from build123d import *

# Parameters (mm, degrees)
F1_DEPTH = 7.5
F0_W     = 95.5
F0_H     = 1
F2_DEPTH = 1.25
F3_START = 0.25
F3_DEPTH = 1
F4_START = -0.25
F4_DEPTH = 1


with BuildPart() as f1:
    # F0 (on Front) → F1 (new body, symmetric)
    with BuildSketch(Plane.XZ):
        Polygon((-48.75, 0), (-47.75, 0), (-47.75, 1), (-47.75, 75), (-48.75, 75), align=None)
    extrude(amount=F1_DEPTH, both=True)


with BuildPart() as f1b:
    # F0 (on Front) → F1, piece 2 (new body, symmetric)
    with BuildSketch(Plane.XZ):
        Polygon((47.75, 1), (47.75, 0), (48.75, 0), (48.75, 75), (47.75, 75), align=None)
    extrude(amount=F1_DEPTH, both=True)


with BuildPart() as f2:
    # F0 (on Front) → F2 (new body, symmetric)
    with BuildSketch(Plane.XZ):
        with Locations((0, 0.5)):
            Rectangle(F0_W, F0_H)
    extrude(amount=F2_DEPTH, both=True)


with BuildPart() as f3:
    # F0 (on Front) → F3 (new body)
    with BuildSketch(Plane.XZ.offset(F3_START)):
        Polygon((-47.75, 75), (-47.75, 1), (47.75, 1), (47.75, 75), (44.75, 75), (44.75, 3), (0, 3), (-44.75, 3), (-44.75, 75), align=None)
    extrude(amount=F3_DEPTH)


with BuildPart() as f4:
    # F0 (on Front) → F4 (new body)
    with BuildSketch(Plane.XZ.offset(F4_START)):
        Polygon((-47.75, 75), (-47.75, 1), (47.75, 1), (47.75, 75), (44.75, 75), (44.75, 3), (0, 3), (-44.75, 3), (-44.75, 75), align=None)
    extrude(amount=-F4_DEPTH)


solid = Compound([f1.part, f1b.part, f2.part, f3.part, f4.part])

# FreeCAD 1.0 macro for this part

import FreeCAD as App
import Part
import Sketcher
from FreeCAD import Vector
Q = App.Units.Quantity


def add_polygon(sketch, points):
    """Adds a closed chain of lines whose ends are joined by coincident constraints."""
    first, n = sketch.GeometryCount, len(points)
    for a, b in zip(points, points[1:] + points[:1]):
        sketch.addGeometry(Part.LineSegment(App.Vector(*a, 0), App.Vector(*b, 0)), False)
    for i in range(n):
        sketch.addConstraint(Sketcher.Constraint("Coincident", first + i, 2, first + (i + 1) % n, 1))

doc = App.newDocument("Part")
params = doc.addObject("Spreadsheet::Sheet", "Params")
for row, (alias, value) in enumerate([
    ("sketch1_width", "1 mm"),
    ("sketch1_height", "75 mm"),
    ("pad1_length", "15 mm"),
    ("sketch2_width", "1 mm"),
    ("sketch2_height", "75 mm"),
    ("pad2_length", "15 mm"),
    ("sketch3_height", "1 mm"),
    ("sketch3_width", "95.5 mm"),
    ("pad3_length", "2.5 mm"),
    ("sketch4_width", "3 mm"),
    ("sketch4_height", "74 mm"),
    ("sketch4_height2", "72 mm"),
    ("sketch4_width2", "95.5 mm"),
    ("pad4_length", "1 mm"),
    ("sketch5_width", "3 mm"),
    ("sketch5_height", "74 mm"),
    ("sketch5_height2", "72 mm"),
    ("sketch5_width2", "95.5 mm"),
    ("pad5_length", "1 mm"),
], start=1):
    params.set(f"A{row}", alias)
    params.set(f"B{row}", "=" + value)
    params.setAlias(f"B{row}", alias)

body = doc.addObject("PartDesign::Body", "Body")

sketch1 = doc.addObject("Sketcher::SketchObject", "Sketch")
body.addObject(sketch1)
sketch1.AttachmentSupport = (doc.XZ_Plane, [""])
sketch1.MapMode = "FlatFace"
add_polygon(sketch1, [(-48.8, 0), (-47.8, 0), (-47.8, 75), (-48.8, 75)])
sketch1.addConstraint([
    Sketcher.Constraint("Horizontal", 0),
    Sketcher.Constraint("Vertical", 1),
    Sketcher.Constraint("Horizontal", 2),
    Sketcher.Constraint("Vertical", 3),
    Sketcher.Constraint("PointOnObject", 0, 2, -1),
    Sketcher.Constraint("DistanceX", 0, 1, 0, 2, Q("1 mm")),
    Sketcher.Constraint("DistanceY", 1, 1, 1, 2, Q("75 mm")),
    Sketcher.Constraint("DistanceX", 0, 2, -1, 1, Q("47.75 mm")),
])
sketch1.setExpression("Constraints[9]", "Params.sketch1_width")
sketch1.setExpression("Constraints[10]", "Params.sketch1_height")
pad1 = doc.addObject("PartDesign::Pad", "Pad")
body.addObject(pad1)
pad1.Profile = sketch1
pad1.setExpression("Length", "Params.pad1_length")
pad1.Midplane = True
body2 = doc.addObject("PartDesign::Body", "Body001")

sketch2 = doc.addObject("Sketcher::SketchObject", "Sketch001")
body2.addObject(sketch2)
sketch2.AttachmentSupport = (doc.getObject("XZ_Plane001"), [""])
sketch2.MapMode = "FlatFace"
add_polygon(sketch2, [(47.8, 0), (48.8, 0), (48.8, 75), (47.8, 75)])
sketch2.addConstraint([
    Sketcher.Constraint("Horizontal", 0),
    Sketcher.Constraint("Vertical", 1),
    Sketcher.Constraint("Horizontal", 2),
    Sketcher.Constraint("Vertical", 3),
    Sketcher.Constraint("PointOnObject", 0, 2, -1),
    Sketcher.Constraint("DistanceX", 0, 1, 0, 2, Q("1 mm")),
    Sketcher.Constraint("DistanceY", 1, 1, 1, 2, Q("75 mm")),
    Sketcher.Constraint("DistanceX", -1, 1, 0, 2, Q("48.75 mm")),
])
sketch2.setExpression("Constraints[9]", "Params.sketch2_width")
sketch2.setExpression("Constraints[10]", "Params.sketch2_height")
pad2 = doc.addObject("PartDesign::Pad", "Pad001")
body2.addObject(pad2)
pad2.Profile = sketch2
pad2.setExpression("Length", "Params.pad2_length")
pad2.Midplane = True
body3 = doc.addObject("PartDesign::Body", "Body002")

sketch3 = doc.addObject("Sketcher::SketchObject", "Sketch002")
body3.addObject(sketch3)
sketch3.AttachmentSupport = (doc.getObject("XZ_Plane002"), [""])
sketch3.MapMode = "FlatFace"
add_polygon(sketch3, [(-47.8, 1), (-47.8, 0), (47.8, 0), (47.8, 1)])
sketch3.addConstraint([
    Sketcher.Constraint("Vertical", 0),
    Sketcher.Constraint("Horizontal", 1),
    Sketcher.Constraint("Vertical", 2),
    Sketcher.Constraint("Horizontal", 3),
    Sketcher.Constraint("Symmetric", 0, 2, 1, 2, -1, 1),
    Sketcher.Constraint("DistanceY", 0, 2, 0, 1, Q("1 mm")),
    Sketcher.Constraint("DistanceX", 1, 1, 1, 2, Q("95.5 mm")),
])
sketch3.setExpression("Constraints[9]", "Params.sketch3_height")
sketch3.setExpression("Constraints[10]", "Params.sketch3_width")
pad3 = doc.addObject("PartDesign::Pad", "Pad002")
body3.addObject(pad3)
pad3.Profile = sketch3
pad3.setExpression("Length", "Params.pad3_length")
pad3.Midplane = True
body4 = doc.addObject("PartDesign::Body", "Body003")

sketch4 = doc.addObject("Sketcher::SketchObject", "Sketch003")
body4.addObject(sketch4)
sketch4.AttachmentSupport = (doc.getObject("XZ_Plane003"), [""])
sketch4.MapMode = "FlatFace"
sketch4.AttachmentOffset = App.Placement(Vector(0, 0, 0.25), App.Rotation())
add_polygon(sketch4, [(-47.8, 75), (-47.8, 1), (47.8, 1), (47.8, 75), (44.8, 75), (44.8, 3), (-44.8, 3), (-44.8, 75)])
sketch4.addConstraint([
    Sketcher.Constraint("Vertical", 0),
    Sketcher.Constraint("Horizontal", 1),
    Sketcher.Constraint("Vertical", 2),
    Sketcher.Constraint("Horizontal", 3),
    Sketcher.Constraint("Vertical", 4),
    Sketcher.Constraint("Horizontal", 5),
    Sketcher.Constraint("Vertical", 6),
    Sketcher.Constraint("Horizontal", 7),
    Sketcher.Constraint("Symmetric", 3, 2, 6, 2, -2),
    Sketcher.Constraint("Equal", 3, 7),
    Sketcher.Constraint("DistanceX", 3, 2, 3, 1, Q("3 mm")),
    Sketcher.Constraint("DistanceY", 0, 2, 0, 1, Q("74 mm")),
    Sketcher.Constraint("DistanceY", 4, 2, 4, 1, Q("72 mm")),
    Sketcher.Constraint("DistanceX", 1, 1, 1, 2, Q("95.5 mm")),
    Sketcher.Constraint("DistanceY", -1, 1, 0, 2, Q("1 mm")),
])
sketch4.setExpression("Constraints[18]", "Params.sketch4_width")
sketch4.setExpression("Constraints[19]", "Params.sketch4_height")
sketch4.setExpression("Constraints[20]", "Params.sketch4_height2")
sketch4.setExpression("Constraints[21]", "Params.sketch4_width2")
pad4 = doc.addObject("PartDesign::Pad", "Pad003")
body4.addObject(pad4)
pad4.Profile = sketch4
pad4.setExpression("Length", "Params.pad4_length")
body5 = doc.addObject("PartDesign::Body", "Body004")

sketch5 = doc.addObject("Sketcher::SketchObject", "Sketch004")
body5.addObject(sketch5)
sketch5.AttachmentSupport = (doc.getObject("XZ_Plane004"), [""])
sketch5.MapMode = "FlatFace"
sketch5.AttachmentOffset = App.Placement(Vector(0, 0, -0.25), App.Rotation())
add_polygon(sketch5, [(-47.8, 75), (-47.8, 1), (47.8, 1), (47.8, 75), (44.8, 75), (44.8, 3), (-44.8, 3), (-44.8, 75)])
sketch5.addConstraint([
    Sketcher.Constraint("Vertical", 0),
    Sketcher.Constraint("Horizontal", 1),
    Sketcher.Constraint("Vertical", 2),
    Sketcher.Constraint("Horizontal", 3),
    Sketcher.Constraint("Vertical", 4),
    Sketcher.Constraint("Horizontal", 5),
    Sketcher.Constraint("Vertical", 6),
    Sketcher.Constraint("Horizontal", 7),
    Sketcher.Constraint("Symmetric", 3, 2, 6, 2, -2),
    Sketcher.Constraint("Equal", 3, 7),
    Sketcher.Constraint("DistanceX", 3, 2, 3, 1, Q("3 mm")),
    Sketcher.Constraint("DistanceY", 0, 2, 0, 1, Q("74 mm")),
    Sketcher.Constraint("DistanceY", 4, 2, 4, 1, Q("72 mm")),
    Sketcher.Constraint("DistanceX", 1, 1, 1, 2, Q("95.5 mm")),
    Sketcher.Constraint("DistanceY", -1, 1, 0, 2, Q("1 mm")),
])
sketch5.setExpression("Constraints[18]", "Params.sketch5_width")
sketch5.setExpression("Constraints[19]", "Params.sketch5_height")
sketch5.setExpression("Constraints[20]", "Params.sketch5_height2")
sketch5.setExpression("Constraints[21]", "Params.sketch5_width2")
pad5 = doc.addObject("PartDesign::Pad", "Pad004")
body5.addObject(pad5)
pad5.Profile = sketch5
pad5.setExpression("Length", "Params.pad5_length")
pad5.Reversed = True

doc.recompute()
